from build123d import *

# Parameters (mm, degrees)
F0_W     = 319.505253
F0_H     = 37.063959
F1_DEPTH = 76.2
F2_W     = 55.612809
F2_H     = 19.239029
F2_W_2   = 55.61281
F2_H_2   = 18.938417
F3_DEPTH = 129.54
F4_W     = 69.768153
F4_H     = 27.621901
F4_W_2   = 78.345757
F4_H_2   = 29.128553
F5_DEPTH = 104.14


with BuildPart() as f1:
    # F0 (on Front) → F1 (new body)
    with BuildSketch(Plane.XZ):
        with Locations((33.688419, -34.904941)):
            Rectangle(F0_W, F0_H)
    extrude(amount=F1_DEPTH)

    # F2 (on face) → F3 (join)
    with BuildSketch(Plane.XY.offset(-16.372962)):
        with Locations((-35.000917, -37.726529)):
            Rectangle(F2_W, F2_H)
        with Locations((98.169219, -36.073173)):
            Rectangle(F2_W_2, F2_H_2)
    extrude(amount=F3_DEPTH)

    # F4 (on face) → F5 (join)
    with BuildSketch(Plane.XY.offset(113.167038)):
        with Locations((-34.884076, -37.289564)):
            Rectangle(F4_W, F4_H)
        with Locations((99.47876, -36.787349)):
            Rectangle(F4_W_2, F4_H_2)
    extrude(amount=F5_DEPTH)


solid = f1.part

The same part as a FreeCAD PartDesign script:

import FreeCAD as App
import Part
import Sketcher
from FreeCAD import Vector
Q = App.Units.Quantity

doc = App.newDocument("Part")
body = doc.addObject("PartDesign::Body", "Body")

# Sketch on XZ plane
sketch1 = body.newObject("Sketcher::SketchObject", "Sketch")
sketch1.AttachmentSupport = (doc.getObject("XZ_Plane"), [""])
sketch1.MapMode = "FlatFace"
sketch1.addGeometry(Part.LineSegment(Vector(-126, -16, 0), Vector(-126, -53, 0)), False)
sketch1.addGeometry(Part.LineSegment(Vector(-126, -53, 0), Vector(193, -53, 0)), False)
sketch1.addGeometry(Part.LineSegment(Vector(193, -53, 0), Vector(193, -16, 0)), False)
sketch1.addGeometry(Part.LineSegment(Vector(193, -16, 0), Vector(-126, -16, 0)), False)
sketch1.addConstraint(Sketcher.Constraint("Coincident", 0, 2, 1, 1))
sketch1.addConstraint(Sketcher.Constraint("Coincident", 1, 2, 2, 1))
sketch1.addConstraint(Sketcher.Constraint("Coincident", 2, 2, 3, 1))
sketch1.addConstraint(Sketcher.Constraint("Coincident", 3, 2, 0, 1))
sketch1.addConstraint(Sketcher.Constraint("Vertical", 0))
sketch1.addConstraint(Sketcher.Constraint("Horizontal", 1))
sketch1.addConstraint(Sketcher.Constraint("Vertical", 2))
sketch1.addConstraint(Sketcher.Constraint("Horizontal", 3))
sketch1.addConstraint(Sketcher.Constraint("DistanceY", 0, 2, 0, 1, 37.063959))
sketch1.addConstraint(Sketcher.Constraint("DistanceX", 1, 1, 1, 2, 319.505253))
sketch1.addConstraint(Sketcher.Constraint("DistanceY", 0, 2, -1, 1, 53.43692))
sketch1.addConstraint(Sketcher.Constraint("DistanceX", 0, 2, -1, 1, 126.064207))
pad1 = body.newObject("PartDesign::Pad", "Pad")
pad1.Profile = sketch1
pad1.Length = Q("3 in")

# Sketch on XY plane
sketch2 = body.newObject("Sketcher::SketchObject", "Sketch001")
sketch2.AttachmentSupport = (doc.getObject("XY_Plane"), [""])
sketch2.MapMode = "FlatFace"
sketch2.AttachmentOffset = App.Placement(Vector(0, 0, -16.372962), App.Rotation())
sketch2.addGeometry(Part.LineSegment(Vector(-63, -28, 0), Vector(-63, -47, 0)), False)
sketch2.addGeometry(Part.LineSegment(Vector(-63, -47, 0), Vector(-7, -47, 0)), False)
sketch2.addGeometry(Part.LineSegment(Vector(-7, -47, 0), Vector(-7, -28, 0)), False)
sketch2.addGeometry(Part.LineSegment(Vector(-7, -28, 0), Vector(-63, -28, 0)), False)
sketch2.addGeometry(Part.LineSegment(Vector(70, -27, 0), Vector(70, -46, 0)), False)
sketch2.addGeometry(Part.LineSegment(Vector(70, -46, 0), Vector(126, -46, 0)), False)
sketch2.addGeometry(Part.LineSegment(Vector(126, -46, 0), Vector(126, -27, 0)), False)
sketch2.addGeometry(Part.LineSegment(Vector(126, -27, 0), Vector(70, -27, 0)), False)
sketch2.addConstraint(Sketcher.Constraint("Coincident", 0, 2, 1, 1))
sketch2.addConstraint(Sketcher.Constraint("Coincident", 1, 2, 2, 1))
sketch2.addConstraint(Sketcher.Constraint("Coincident", 2, 2, 3, 1))
sketch2.addConstraint(Sketcher.Constraint("Coincident", 3, 2, 0, 1))
sketch2.addConstraint(Sketcher.Constraint("Coincident", 4, 2, 5, 1))
sketch2.addConstraint(Sketcher.Constraint("Coincident", 5, 2, 6, 1))
sketch2.addConstraint(Sketcher.Constraint("Coincident", 6, 2, 7, 1))
sketch2.addConstraint(Sketcher.Constraint("Coincident", 7, 2, 4, 1))
sketch2.addConstraint(Sketcher.Constraint("Vertical", 0))
sketch2.addConstraint(Sketcher.Constraint("Horizontal", 1))
sketch2.addConstraint(Sketcher.Constraint("Vertical", 2))
sketch2.addConstraint(Sketcher.Constraint("Horizontal", 3))
sketch2.addConstraint(Sketcher.Constraint("Vertical", 4))
sketch2.addConstraint(Sketcher.Constraint("Horizontal", 5))
sketch2.addConstraint(Sketcher.Constraint("Vertical", 6))
sketch2.addConstraint(Sketcher.Constraint("Horizontal", 7))
sketch2.addConstraint(Sketcher.Constraint("Equal", 3, 5))
sketch2.addConstraint(Sketcher.Constraint("DistanceY", 6, 2, -1, 1, Q("1.0474002 in")))
sketch2.addConstraint(Sketcher.Constraint("DistanceX", 1, 1, 1, 2, 55.612809))
sketch2.addConstraint(Sketcher.Constraint("DistanceY", 0, 2, 0, 1, 19.239029))
sketch2.addConstraint(Sketcher.Constraint("DistanceY", 4, 2, 4, 1, 18.938417))
sketch2.addConstraint(Sketcher.Constraint("DistanceX", 0, 2, -1, 1, 62.807322))
sketch2.addConstraint(Sketcher.Constraint("DistanceY", 2, 2, 6, 2, 1.50305))
sketch2.addConstraint(Sketcher.Constraint("DistanceX", -1, 1, 4, 2, 70.362814))
pad2 = body.newObject("PartDesign::Pad", "Pad001")
pad2.Profile = sketch2
pad2.Length = Q("5.1 in")

# Sketch on XY plane
sketch3 = body.newObject("Sketcher::SketchObject", "Sketch002")
sketch3.AttachmentSupport = (doc.getObject("XY_Plane"), [""])
sketch3.MapMode = "FlatFace"
sketch3.AttachmentOffset = App.Placement(Vector(0, 0, 113.167038), App.Rotation())
sketch3.addGeometry(Part.LineSegment(Vector(-70, -23, 0), Vector(-70, -51, 0)), False)
sketch3.addGeometry(Part.LineSegment(Vector(-70, -51, 0), Vector(0, -51, 0)), False)
sketch3.addGeometry(Part.LineSegment(Vector(0, -51, 0), Vector(0, -23, 0)), False)
sketch3.addGeometry(Part.LineSegment(Vector(0, -23, 0), Vector(-70, -23, 0)), False)
sketch3.addGeometry(Part.LineSegment(Vector(60, -22, 0), Vector(60, -51, 0)), False)
sketch3.addGeometry(Part.LineSegment(Vector(60, -51, 0), Vector(139, -51, 0)), False)
sketch3.addGeometry(Part.LineSegment(Vector(139, -51, 0), Vector(139, -22, 0)), False)
sketch3.addGeometry(Part.LineSegment(Vector(139, -22, 0), Vector(60, -22, 0)), False)
sketch3.addConstraint(Sketcher.Constraint("Coincident", 0, 2, 1, 1))
sketch3.addConstraint(Sketcher.Constraint("Coincident", 1, 2, 2, 1))
sketch3.addConstraint(Sketcher.Constraint("Coincident", 2, 2, 3, 1))
sketch3.addConstraint(Sketcher.Constraint("Coincident", 3, 2, 0, 1))
sketch3.addConstraint(Sketcher.Constraint("Coincident", 4, 2, 5, 1))
sketch3.addConstraint(Sketcher.Constraint("Coincident", 5, 2, 6, 1))
sketch3.addConstraint(Sketcher.Constraint("Coincident", 6, 2, 7, 1))
sketch3.addConstraint(Sketcher.Constraint("Coincident", 7, 2, 4, 1))
sketch3.addConstraint(Sketcher.Constraint("Vertical", 0))
sketch3.addConstraint(Sketcher.Constraint("Horizontal", 1))
sketch3.addConstraint(Sketcher.Constraint("Vertical", 2))
sketch3.addConstraint(Sketcher.Constraint("Horizontal", 3))
sketch3.addConstraint(Sketcher.Constraint("Vertical", 4))
sketch3.addConstraint(Sketcher.Constraint("Horizontal", 5))
sketch3.addConstraint(Sketcher.Constraint("Vertical", 6))
sketch3.addConstraint(Sketcher.Constraint("Horizontal", 7))
sketch3.addConstraint(Sketcher.Constraint("PointOnObject", 1, 2, -2))
sketch3.addConstraint(Sketcher.Constraint("DistanceY", 0, 2, 0, 1, 27.621901))
sketch3.addConstraint(Sketcher.Constraint("DistanceX", 1, 1, 1, 2, 69.768153))
sketch3.addConstraint(Sketcher.Constraint("DistanceX", 5, 1, 5, 2, 78.345757))
sketch3.addConstraint(Sketcher.Constraint("DistanceY", 4, 2, 4, 1, 29.128553))
sketch3.addConstraint(Sketcher.Constraint("DistanceX", -1, 1, 4, 2, 60.305881))
sketch3.addConstraint(Sketcher.Constraint("DistanceY", 4, 2, 1, 2, 0.251111))
sketch3.addConstraint(Sketcher.Constraint("DistanceY", 0, 2, -1, 1, 51.100515))
pad3 = body.newObject("PartDesign::Pad", "Pad002")
pad3.Profile = sketch3
pad3.Length = Q("4.1 in")

doc.recompute()
